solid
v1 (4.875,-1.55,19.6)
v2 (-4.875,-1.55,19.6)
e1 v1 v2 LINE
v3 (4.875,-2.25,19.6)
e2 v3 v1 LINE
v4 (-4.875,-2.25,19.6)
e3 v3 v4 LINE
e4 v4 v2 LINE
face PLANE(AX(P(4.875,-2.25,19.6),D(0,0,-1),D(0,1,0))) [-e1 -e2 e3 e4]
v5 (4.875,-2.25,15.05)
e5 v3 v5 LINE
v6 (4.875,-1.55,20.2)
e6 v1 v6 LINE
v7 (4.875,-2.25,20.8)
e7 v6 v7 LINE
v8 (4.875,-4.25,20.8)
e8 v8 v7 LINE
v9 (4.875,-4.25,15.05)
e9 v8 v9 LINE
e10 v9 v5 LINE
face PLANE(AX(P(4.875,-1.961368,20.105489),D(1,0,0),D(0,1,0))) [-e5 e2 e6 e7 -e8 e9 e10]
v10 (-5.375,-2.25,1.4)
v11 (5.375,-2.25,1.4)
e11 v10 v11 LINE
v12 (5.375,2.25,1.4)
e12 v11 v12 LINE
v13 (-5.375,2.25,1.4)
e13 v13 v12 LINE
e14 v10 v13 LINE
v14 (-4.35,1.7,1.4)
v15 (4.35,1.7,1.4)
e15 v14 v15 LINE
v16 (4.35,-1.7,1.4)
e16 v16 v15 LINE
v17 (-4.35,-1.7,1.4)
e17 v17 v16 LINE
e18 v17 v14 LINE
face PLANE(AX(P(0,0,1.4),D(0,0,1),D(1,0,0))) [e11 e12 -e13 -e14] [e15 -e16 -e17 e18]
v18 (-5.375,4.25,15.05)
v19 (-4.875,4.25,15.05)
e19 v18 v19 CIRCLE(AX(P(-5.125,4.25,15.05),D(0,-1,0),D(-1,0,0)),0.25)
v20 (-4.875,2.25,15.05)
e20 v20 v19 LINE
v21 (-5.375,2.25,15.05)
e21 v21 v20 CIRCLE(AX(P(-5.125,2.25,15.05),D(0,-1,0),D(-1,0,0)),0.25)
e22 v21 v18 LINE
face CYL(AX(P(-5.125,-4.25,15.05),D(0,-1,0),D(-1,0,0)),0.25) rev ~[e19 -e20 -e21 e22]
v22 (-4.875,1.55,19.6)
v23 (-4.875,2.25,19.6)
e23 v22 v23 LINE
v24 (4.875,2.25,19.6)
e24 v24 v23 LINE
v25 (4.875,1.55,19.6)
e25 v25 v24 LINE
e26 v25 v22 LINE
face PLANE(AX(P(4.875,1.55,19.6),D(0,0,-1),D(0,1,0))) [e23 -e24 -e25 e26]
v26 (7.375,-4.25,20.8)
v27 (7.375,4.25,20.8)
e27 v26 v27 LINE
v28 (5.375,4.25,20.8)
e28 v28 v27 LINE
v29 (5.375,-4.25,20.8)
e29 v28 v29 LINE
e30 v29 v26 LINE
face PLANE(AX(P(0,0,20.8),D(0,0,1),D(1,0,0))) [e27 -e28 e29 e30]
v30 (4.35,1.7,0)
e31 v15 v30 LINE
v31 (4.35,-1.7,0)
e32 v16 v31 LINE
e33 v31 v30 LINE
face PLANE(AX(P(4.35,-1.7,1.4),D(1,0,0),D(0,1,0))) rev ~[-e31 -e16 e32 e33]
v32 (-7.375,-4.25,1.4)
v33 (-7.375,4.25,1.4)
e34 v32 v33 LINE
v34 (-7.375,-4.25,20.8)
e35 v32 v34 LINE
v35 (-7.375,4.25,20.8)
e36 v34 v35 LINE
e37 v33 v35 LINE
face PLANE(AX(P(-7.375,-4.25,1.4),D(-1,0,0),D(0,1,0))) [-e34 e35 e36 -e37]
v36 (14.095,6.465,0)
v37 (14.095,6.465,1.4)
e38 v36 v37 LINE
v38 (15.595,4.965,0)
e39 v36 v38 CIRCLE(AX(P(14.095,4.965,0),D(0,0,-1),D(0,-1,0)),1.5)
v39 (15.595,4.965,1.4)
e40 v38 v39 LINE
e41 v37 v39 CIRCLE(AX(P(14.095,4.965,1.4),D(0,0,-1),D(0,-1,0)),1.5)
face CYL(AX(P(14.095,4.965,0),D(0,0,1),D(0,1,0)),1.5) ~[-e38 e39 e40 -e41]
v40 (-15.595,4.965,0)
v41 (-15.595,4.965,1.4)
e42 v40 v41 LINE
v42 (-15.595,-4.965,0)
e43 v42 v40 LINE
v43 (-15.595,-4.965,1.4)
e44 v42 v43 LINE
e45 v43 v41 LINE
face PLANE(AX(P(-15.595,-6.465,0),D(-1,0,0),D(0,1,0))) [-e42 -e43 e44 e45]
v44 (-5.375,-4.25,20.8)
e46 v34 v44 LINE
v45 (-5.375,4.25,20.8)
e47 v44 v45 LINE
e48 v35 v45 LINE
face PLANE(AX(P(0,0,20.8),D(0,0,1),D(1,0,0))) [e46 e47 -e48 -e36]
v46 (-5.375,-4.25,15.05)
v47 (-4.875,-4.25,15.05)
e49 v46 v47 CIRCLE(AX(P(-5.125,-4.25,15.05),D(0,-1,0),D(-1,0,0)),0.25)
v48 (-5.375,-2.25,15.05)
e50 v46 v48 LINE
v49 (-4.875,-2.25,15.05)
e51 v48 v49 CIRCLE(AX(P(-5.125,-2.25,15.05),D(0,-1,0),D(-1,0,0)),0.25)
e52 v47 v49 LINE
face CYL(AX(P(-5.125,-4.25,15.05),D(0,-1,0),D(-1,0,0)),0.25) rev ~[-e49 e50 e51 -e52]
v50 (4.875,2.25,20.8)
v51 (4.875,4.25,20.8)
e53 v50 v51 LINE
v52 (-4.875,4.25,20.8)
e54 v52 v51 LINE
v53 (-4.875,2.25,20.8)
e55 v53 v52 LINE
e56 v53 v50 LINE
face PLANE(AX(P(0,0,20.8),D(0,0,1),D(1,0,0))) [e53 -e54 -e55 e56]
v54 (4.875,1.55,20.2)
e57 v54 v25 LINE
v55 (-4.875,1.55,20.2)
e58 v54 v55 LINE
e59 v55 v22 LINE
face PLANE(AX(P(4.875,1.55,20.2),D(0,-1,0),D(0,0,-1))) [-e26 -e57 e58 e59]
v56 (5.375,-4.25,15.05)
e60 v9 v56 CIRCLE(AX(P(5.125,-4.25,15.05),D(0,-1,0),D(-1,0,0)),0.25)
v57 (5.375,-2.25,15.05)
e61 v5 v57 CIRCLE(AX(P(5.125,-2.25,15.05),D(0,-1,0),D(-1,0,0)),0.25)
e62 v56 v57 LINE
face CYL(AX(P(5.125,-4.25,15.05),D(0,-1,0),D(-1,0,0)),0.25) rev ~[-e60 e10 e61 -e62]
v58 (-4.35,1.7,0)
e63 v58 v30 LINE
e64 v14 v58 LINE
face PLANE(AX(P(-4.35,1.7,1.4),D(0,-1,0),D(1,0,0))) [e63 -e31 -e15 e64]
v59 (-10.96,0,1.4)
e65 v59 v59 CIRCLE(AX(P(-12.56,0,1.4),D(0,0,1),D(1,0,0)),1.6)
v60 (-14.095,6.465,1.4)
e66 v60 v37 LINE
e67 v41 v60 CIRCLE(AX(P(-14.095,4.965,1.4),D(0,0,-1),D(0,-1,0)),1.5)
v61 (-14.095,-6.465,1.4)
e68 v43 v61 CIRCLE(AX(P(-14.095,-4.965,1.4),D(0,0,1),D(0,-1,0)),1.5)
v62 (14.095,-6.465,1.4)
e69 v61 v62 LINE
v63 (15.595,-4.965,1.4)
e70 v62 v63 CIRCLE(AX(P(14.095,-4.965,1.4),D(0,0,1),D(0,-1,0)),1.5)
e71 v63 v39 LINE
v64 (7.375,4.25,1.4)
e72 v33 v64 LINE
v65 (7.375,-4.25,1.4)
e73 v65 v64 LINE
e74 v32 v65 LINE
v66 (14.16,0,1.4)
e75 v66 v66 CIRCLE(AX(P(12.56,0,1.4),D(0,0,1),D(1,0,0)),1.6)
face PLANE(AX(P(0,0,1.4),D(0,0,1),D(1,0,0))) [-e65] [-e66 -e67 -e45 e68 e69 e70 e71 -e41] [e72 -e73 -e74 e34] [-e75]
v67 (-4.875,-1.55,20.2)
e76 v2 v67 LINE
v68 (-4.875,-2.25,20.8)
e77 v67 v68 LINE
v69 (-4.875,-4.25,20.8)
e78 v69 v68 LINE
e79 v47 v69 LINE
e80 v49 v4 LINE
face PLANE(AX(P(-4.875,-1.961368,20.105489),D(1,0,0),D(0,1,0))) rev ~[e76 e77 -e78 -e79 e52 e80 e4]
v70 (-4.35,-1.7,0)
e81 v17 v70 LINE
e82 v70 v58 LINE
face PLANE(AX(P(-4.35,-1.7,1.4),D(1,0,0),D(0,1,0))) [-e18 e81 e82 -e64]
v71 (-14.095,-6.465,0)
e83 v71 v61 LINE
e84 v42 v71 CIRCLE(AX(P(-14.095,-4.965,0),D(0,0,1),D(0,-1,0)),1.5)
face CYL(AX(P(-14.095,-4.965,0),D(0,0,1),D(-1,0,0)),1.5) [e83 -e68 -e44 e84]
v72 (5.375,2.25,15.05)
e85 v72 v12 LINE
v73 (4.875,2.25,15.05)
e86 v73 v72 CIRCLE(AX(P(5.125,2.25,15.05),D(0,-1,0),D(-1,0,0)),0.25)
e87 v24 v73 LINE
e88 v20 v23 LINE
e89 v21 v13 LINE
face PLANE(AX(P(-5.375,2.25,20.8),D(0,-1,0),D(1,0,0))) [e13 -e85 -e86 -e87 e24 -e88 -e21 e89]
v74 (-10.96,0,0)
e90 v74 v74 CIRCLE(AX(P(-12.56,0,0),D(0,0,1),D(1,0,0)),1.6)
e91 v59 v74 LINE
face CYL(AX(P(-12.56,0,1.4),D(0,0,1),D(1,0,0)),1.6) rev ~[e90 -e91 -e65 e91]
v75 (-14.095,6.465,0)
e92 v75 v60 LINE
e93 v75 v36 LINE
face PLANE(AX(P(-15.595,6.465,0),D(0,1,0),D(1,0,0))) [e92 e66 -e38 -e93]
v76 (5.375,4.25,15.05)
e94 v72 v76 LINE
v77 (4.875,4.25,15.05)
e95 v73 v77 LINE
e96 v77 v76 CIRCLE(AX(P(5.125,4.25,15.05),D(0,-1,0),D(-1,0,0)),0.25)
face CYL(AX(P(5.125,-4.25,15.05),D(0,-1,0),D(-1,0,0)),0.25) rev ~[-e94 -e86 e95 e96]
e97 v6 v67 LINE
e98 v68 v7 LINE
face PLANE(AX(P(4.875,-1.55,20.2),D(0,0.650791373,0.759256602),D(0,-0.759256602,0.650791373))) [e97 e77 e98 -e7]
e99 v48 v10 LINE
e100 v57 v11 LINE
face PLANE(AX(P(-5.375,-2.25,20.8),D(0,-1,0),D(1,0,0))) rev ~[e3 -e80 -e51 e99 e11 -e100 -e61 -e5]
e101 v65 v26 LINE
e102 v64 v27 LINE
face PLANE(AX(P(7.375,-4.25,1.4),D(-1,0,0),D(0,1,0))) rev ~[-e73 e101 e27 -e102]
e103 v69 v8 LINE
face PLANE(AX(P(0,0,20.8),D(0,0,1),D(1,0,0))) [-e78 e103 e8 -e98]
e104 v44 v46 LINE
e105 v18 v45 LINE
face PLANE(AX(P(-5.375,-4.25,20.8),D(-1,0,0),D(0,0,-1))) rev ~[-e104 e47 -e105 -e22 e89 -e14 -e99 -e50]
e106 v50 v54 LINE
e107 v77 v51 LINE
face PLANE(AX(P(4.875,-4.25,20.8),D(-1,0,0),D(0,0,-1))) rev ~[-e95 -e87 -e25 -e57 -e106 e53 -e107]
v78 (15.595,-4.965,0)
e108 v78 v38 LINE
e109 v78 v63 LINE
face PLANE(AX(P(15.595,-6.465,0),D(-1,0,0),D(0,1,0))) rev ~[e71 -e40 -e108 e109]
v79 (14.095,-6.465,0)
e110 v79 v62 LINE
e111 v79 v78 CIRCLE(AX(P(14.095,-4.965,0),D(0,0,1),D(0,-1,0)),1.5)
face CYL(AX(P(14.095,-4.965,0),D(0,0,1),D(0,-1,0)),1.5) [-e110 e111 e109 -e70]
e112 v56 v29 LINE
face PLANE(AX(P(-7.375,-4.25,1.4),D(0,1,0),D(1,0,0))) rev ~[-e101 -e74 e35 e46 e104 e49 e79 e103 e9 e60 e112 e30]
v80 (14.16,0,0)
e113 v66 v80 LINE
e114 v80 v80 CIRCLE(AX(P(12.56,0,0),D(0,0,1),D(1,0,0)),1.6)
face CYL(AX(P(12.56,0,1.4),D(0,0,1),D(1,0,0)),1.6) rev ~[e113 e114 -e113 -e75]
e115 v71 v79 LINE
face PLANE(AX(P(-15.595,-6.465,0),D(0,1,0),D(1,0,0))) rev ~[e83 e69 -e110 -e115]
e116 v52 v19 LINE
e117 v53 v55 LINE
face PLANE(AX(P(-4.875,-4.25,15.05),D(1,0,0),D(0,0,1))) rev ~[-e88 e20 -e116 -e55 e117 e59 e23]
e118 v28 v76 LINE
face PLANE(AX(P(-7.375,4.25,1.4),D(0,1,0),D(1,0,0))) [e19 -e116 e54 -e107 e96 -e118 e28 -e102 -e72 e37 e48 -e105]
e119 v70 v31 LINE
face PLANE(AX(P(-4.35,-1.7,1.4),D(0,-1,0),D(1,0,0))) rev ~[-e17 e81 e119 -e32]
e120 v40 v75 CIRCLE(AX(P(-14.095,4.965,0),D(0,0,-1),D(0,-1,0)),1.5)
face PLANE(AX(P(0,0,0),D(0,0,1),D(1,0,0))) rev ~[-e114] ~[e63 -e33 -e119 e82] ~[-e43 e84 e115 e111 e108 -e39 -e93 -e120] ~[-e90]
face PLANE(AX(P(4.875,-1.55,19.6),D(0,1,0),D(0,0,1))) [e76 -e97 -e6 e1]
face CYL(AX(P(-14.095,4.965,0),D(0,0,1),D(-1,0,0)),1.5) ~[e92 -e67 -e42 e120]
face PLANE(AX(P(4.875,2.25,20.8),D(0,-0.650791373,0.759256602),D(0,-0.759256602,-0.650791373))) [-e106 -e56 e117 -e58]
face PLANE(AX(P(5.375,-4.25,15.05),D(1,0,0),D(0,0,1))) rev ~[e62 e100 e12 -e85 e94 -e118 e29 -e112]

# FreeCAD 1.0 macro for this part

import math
import FreeCAD as App
import Part
import Sketcher


def edges_at(feature, points):
    """Names of the edges that pass closest to the given points."""
    edges = feature.Shape.Edges
    near = lambda p: min(range(len(edges)), key=lambda i: edges[i].distToShape(Part.Vertex(*p))[0])
    return sorted({f"Edge{near(p) + 1}" for p in points})

doc = App.newDocument("Part")
body = doc.addObject("PartDesign::Body", "Body")

sketch1 = body.newObject("Sketcher::SketchObject", "Sketch")
sketch1.AttachmentSupport = (doc.getObject("XY_Plane"), [""])
sketch1.MapMode = "FlatFace"
sketch1.addGeometry(Part.LineSegment(App.Vector(-16, 6, 0), App.Vector(-16, -6, 0)), False)
sketch1.addGeometry(Part.LineSegment(App.Vector(-16, -6, 0), App.Vector(16, -6, 0)), False)
sketch1.addGeometry(Part.LineSegment(App.Vector(16, -6, 0), App.Vector(16, 6, 0)), False)
sketch1.addGeometry(Part.LineSegment(App.Vector(16, 6, 0), App.Vector(-16, 6, 0)), False)
sketch1.addConstraint(Sketcher.Constraint("Coincident", 0, 2, 1, 1))
sketch1.addConstraint(Sketcher.Constraint("Coincident", 1, 2, 2, 1))
sketch1.addConstraint(Sketcher.Constraint("Coincident", 2, 2, 3, 1))
sketch1.addConstraint(Sketcher.Constraint("Coincident", 3, 2, 0, 1))
sketch1.addConstraint(Sketcher.Constraint("Vertical", 0))
sketch1.addConstraint(Sketcher.Constraint("Horizontal", 1))
sketch1.addConstraint(Sketcher.Constraint("Vertical", 2))
sketch1.addConstraint(Sketcher.Constraint("Horizontal", 3))
sketch1.addConstraint(Sketcher.Constraint("Symmetric", 0, 2, 2, 2, -1, 1))
sketch1.addConstraint(Sketcher.Constraint("DistanceX", 1, 1, 1, 2, 31.19))
sketch1.addConstraint(Sketcher.Constraint("DistanceY", 0, 2, 0, 1, 12.93))
pad1 = body.newObject("PartDesign::Pad", "Pad")
pad1.Profile = sketch1
pad1.Length = 1.4

sketch2 = body.newObject("Sketcher::SketchObject", "Sketch001")
sketch2.AttachmentSupport = (doc.getObject("XY_Plane"), [""])
sketch2.MapMode = "FlatFace"
sketch2.AttachmentOffset = App.Placement(App.Vector(0, 0, 1.4), App.Rotation())
sketch2.addGeometry(Part.Circle(App.Vector(-12.6, 0, 0), App.Vector(0, 0, 1), 1.6), False)
sketch2.addGeometry(Part.Circle(App.Vector(12.6, 0, 0), App.Vector(0, 0, 1), 1.6), False)
sketch2.addConstraint(Sketcher.Constraint("Equal", 0, 1))
sketch2.addConstraint(Sketcher.Constraint("Symmetric", 0, 3, 1, 3, -1, 1))
sketch2.addConstraint(Sketcher.Constraint("PointOnObject", 0, 3, -1))
sketch2.addConstraint(Sketcher.Constraint("Diameter", 0, 3.2))
sketch2.addConstraint(Sketcher.Constraint("DistanceX", 0, 3, -1, 1, 12.56))
pocket1 = body.newObject("PartDesign::Pocket", "Pocket")
pocket1.Profile = sketch2
pocket1.Type = "ThroughAll"
doc.recompute()

fillet = body.newObject("PartDesign::Fillet", "Fillet")
fillet.Base = (pocket1, edges_at(pocket1, [
    (15.595, -6.465, 0.7),
    (15.595, 6.465, 0.7),
    (-15.595, -6.465, 0.7),
    (-15.595, 6.465, 0.7),
]))
fillet.Radius = 1.5

sketch3 = body.newObject("Sketcher::SketchObject", "Sketch002")
sketch3.AttachmentSupport = (doc.getObject("XY_Plane"), [""])
sketch3.MapMode = "FlatFace"
sketch3.AttachmentOffset = App.Placement(App.Vector(0, 0, 1.4), App.Rotation())
sketch3.addGeometry(Part.LineSegment(App.Vector(-4.3, 1.7, 0), App.Vector(-4.3, -1.7, 0)), False)
sketch3.addGeometry(Part.LineSegment(App.Vector(-4.3, -1.7, 0), App.Vector(4.3, -1.7, 0)), False)
sketch3.addGeometry(Part.LineSegment(App.Vector(4.3, -1.7, 0), App.Vector(4.3, 1.7, 0)), False)
sketch3.addGeometry(Part.LineSegment(App.Vector(4.3, 1.7, 0), App.Vector(-4.3, 1.7, 0)), False)
sketch3.addConstraint(Sketcher.Constraint("Coincident", 0, 2, 1, 1))
sketch3.addConstraint(Sketcher.Constraint("Coincident", 1, 2, 2, 1))
sketch3.addConstraint(Sketcher.Constraint("Coincident", 2, 2, 3, 1))
sketch3.addConstraint(Sketcher.Constraint("Coincident", 3, 2, 0, 1))
sketch3.addConstraint(Sketcher.Constraint("Vertical", 0))
sketch3.addConstraint(Sketcher.Constraint("Horizontal", 1))
sketch3.addConstraint(Sketcher.Constraint("Vertical", 2))
sketch3.addConstraint(Sketcher.Constraint("Horizontal", 3))
sketch3.addConstraint(Sketcher.Constraint("Symmetric", 0, 2, 2, 2, -1, 1))
sketch3.addConstraint(Sketcher.Constraint("DistanceX", 1, 1, 1, 2, 8.7))
sketch3.addConstraint(Sketcher.Constraint("DistanceY", 0, 2, 0, 1, 3.4))
pocket2 = body.newObject("PartDesign::Pocket", "Pocket001")
pocket2.Profile = sketch3
pocket2.Type = "ThroughAll"

sketch4 = body.newObject("Sketcher::SketchObject", "Sketch003")
sketch4.AttachmentSupport = (doc.getObject("XY_Plane"), [""])
sketch4.MapMode = "FlatFace"
sketch4.AttachmentOffset = App.Placement(App.Vector(0, 0, 1.4), App.Rotation())
sketch4.addGeometry(Part.LineSegment(App.Vector(-7, 4, 0), App.Vector(-7, -4, 0)), False)
sketch4.addGeometry(Part.LineSegment(App.Vector(-7, -4, 0), App.Vector(7, -4, 0)), False)
sketch4.addGeometry(Part.LineSegment(App.Vector(7, -4, 0), App.Vector(7, 4, 0)), False)
sketch4.addGeometry(Part.LineSegment(App.Vector(7, 4, 0), App.Vector(-7, 4, 0)), False)
sketch4.addConstraint(Sketcher.Constraint("Coincident", 0, 2, 1, 1))
sketch4.addConstraint(Sketcher.Constraint("Coincident", 1, 2, 2, 1))
sketch4.addConstraint(Sketcher.Constraint("Coincident", 2, 2, 3, 1))
sketch4.addConstraint(Sketcher.Constraint("Coincident", 3, 2, 0, 1))
sketch4.addConstraint(Sketcher.Constraint("Vertical", 0))
sketch4.addConstraint(Sketcher.Constraint("Horizontal", 1))
sketch4.addConstraint(Sketcher.Constraint("Vertical", 2))
sketch4.addConstraint(Sketcher.Constraint("Horizontal", 3))
sketch4.addConstraint(Sketcher.Constraint("Symmetric", 0, 2, 2, 2, -1, 1))
sketch4.addConstraint(Sketcher.Constraint("DistanceY", 0, 2, 0, 1, 8.5))
sketch4.addConstraint(Sketcher.Constraint("DistanceX", 1, 1, 1, 2, 14.75))
pad2 = body.newObject("PartDesign::Pad", "Pad001")
pad2.Profile = sketch4
pad2.Length = 19.4

sketch5 = body.newObject("Sketcher::SketchObject", "Sketch004")
sketch5.AttachmentSupport = (doc.getObject("XY_Plane"), [""])
sketch5.MapMode = "FlatFace"
sketch5.AttachmentOffset = App.Placement(App.Vector(0, 0, 20.8), App.Rotation())
sketch5.addGeometry(Part.LineSegment(App.Vector(-5.4, 2.2, 0), App.Vector(-5.4, -2.2, 0)), False)
sketch5.addGeometry(Part.LineSegment(App.Vector(-5.4, -2.2, 0), App.Vector(5.4, -2.2, 0)), False)
sketch5.addGeometry(Part.LineSegment(App.Vector(5.4, -2.2, 0), App.Vector(5.4, 2.2, 0)), False)
sketch5.addGeometry(Part.LineSegment(App.Vector(5.4, 2.2, 0), App.Vector(-5.4, 2.2, 0)), False)
sketch5.addConstraint(Sketcher.Constraint("Coincident", 0, 2, 1, 1))
sketch5.addConstraint(Sketcher.Constraint("Coincident", 1, 2, 2, 1))
sketch5.addConstraint(Sketcher.Constraint("Coincident", 2, 2, 3, 1))
sketch5.addConstraint(Sketcher.Constraint("Coincident", 3, 2, 0, 1))
sketch5.addConstraint(Sketcher.Constraint("Vertical", 0))
sketch5.addConstraint(Sketcher.Constraint("Horizontal", 1))
sketch5.addConstraint(Sketcher.Constraint("Vertical", 2))
sketch5.addConstraint(Sketcher.Constraint("Horizontal", 3))
sketch5.addConstraint(Sketcher.Constraint("Symmetric", 0, 2, 2, 2, -1, 1))
sketch5.addConstraint(Sketcher.Constraint("DistanceY", 0, 2, 0, 1, 4.5))
sketch5.addConstraint(Sketcher.Constraint("DistanceX", 1, 1, 1, 2, 10.75))
pocket3 = body.newObject("PartDesign::Pocket", "Pocket002")
pocket3.Profile = sketch5
pocket3.Length = 19.4

sketch6 = body.newObject("Sketcher::SketchObject", "Sketch005")
sketch6.AttachmentSupport = (doc.getObject("XZ_Plane"), [""])
sketch6.MapMode = "FlatFace"
sketch6.AttachmentOffset = App.Placement(App.Vector(0, 0, 4.25), App.Rotation())
sketch6.addGeometry(Part.LineSegment(App.Vector(-4.88, 20.8, 0), App.Vector(-5.38, 20.8, 0)), False)
sketch6.addGeometry(Part.LineSegment(App.Vector(-5.38, 20.8, 0), App.Vector(-5.38, 15.05, 0)), False)
sketch6.addGeometry(Part.ArcOfCircle(Part.Circle(App.Vector(-5.12, 15.05, 0), App.Vector(0, 0, 1), 0.25), math.radians(180), math.radians(360)), False)
sketch6.addGeometry(Part.LineSegment(App.Vector(-4.88, 15.05, 0), App.Vector(-4.88, 20.8, 0)), False)
sketch6.addGeometry(Part.LineSegment(App.Vector(5.38, 15.05, 0), App.Vector(5.38, 20.8, 0)), False)
sketch6.addGeometry(Part.LineSegment(App.Vector(5.38, 20.8, 0), App.Vector(4.88, 20.8, 0)), False)
sketch6.addGeometry(Part.LineSegment(App.Vector(4.88, 20.8, 0), App.Vector(4.88, 15.05, 0)), False)
sketch6.addGeometry(Part.ArcOfCircle(Part.Circle(App.Vector(5.12, 15.05, 0), App.Vector(0, 0, 1), 0.25), math.radians(180), math.radians(360)), False)
sketch6.addConstraint(Sketcher.Constraint("Coincident", 0, 2, 1, 1))
sketch6.addConstraint(Sketcher.Constraint("Tangent", 1, 2, 2, 1))
sketch6.addConstraint(Sketcher.Constraint("Tangent", 2, 2, 3, 1))
sketch6.addConstraint(Sketcher.Constraint("Coincident", 3, 2, 0, 1))
sketch6.addConstraint(Sketcher.Constraint("Coincident", 4, 2, 5, 1))
sketch6.addConstraint(Sketcher.Constraint("Coincident", 5, 2, 6, 1))
sketch6.addConstraint(Sketcher.Constraint("Tangent", 6, 2, 7, 1))
sketch6.addConstraint(Sketcher.Constraint("Tangent", 7, 2, 4, 1))
sketch6.addConstraint(Sketcher.Constraint("Horizontal", 0))
sketch6.addConstraint(Sketcher.Constraint("Vertical", 1))
sketch6.addConstraint(Sketcher.Constraint("Vertical", 3))
sketch6.addConstraint(Sketcher.Constraint("Vertical", 4))
sketch6.addConstraint(Sketcher.Constraint("Horizontal", 5))
sketch6.addConstraint(Sketcher.Constraint("Vertical", 6))
sketch6.addConstraint(Sketcher.Constraint("Equal", 2, 7))
sketch6.addConstraint(Sketcher.Constraint("Symmetric", 2, 3, 7, 3, -2))
sketch6.addConstraint(Sketcher.Constraint("Horizontal", 3, 2, 4, 2))
sketch6.addConstraint(Sketcher.Constraint("Radius", 2, 0.25))
sketch6.addConstraint(Sketcher.Constraint("DistanceX", 2, 2, 7, 3, 10.0))
sketch6.addConstraint(Sketcher.Constraint("DistanceY", 1, 2, 1, 1, 5.75))
sketch6.addConstraint(Sketcher.Constraint("DistanceY", -1, 1, 0, 2, 20.8))
pocket4 = body.newObject("PartDesign::Pocket", "Pocket003")
pocket4.Profile = sketch6
pocket4.Type = "ThroughAll"

sketch7 = body.newObject("Sketcher::SketchObject", "Sketch006")
sketch7.AttachmentSupport = (doc.getObject("YZ_Plane"), [""])
sketch7.MapMode = "FlatFace"
sketch7.AttachmentOffset = App.Placement(App.Vector(0, 0, 4.875), App.Rotation())
sketch7.addGeometry(Part.LineSegment(App.Vector(-1.6, 20.2, 0), App.Vector(-2.2, 20.8, 0)), False)
sketch7.addGeometry(Part.LineSegment(App.Vector(-2.2, 20.8, 0), App.Vector(-2.2, 19.6, 0)), False)
sketch7.addGeometry(Part.LineSegment(App.Vector(-2.2, 19.6, 0), App.Vector(-1.6, 19.6, 0)), False)
sketch7.addGeometry(Part.LineSegment(App.Vector(-1.6, 19.6, 0), App.Vector(-1.6, 20.2, 0)), False)
sketch7.addGeometry(Part.LineSegment(App.Vector(2.2, 19.6, 0), App.Vector(2.2, 20.8, 0)), False)
sketch7.addGeometry(Part.LineSegment(App.Vector(2.2, 20.8, 0), App.Vector(1.6, 20.2, 0)), False)
sketch7.addGeometry(Part.LineSegment(App.Vector(1.6, 20.2, 0), App.Vector(1.6, 19.6, 0)), False)
sketch7.addGeometry(Part.LineSegment(App.Vector(1.6, 19.6, 0), App.Vector(2.2, 19.6, 0)), False)
sketch7.addConstraint(Sketcher.Constraint("Coincident", 0, 2, 1, 1))
sketch7.addConstraint(Sketcher.Constraint("Coincident", 1, 2, 2, 1))
sketch7.addConstraint(Sketcher.Constraint("Coincident", 2, 2, 3, 1))
sketch7.addConstraint(Sketcher.Constraint("Coincident", 3, 2, 0, 1))
sketch7.addConstraint(Sketcher.Constraint("Coincident", 4, 2, 5, 1))
sketch7.addConstraint(Sketcher.Constraint("Coincident", 5, 2, 6, 1))
sketch7.addConstraint(Sketcher.Constraint("Coincident", 6, 2, 7, 1))
sketch7.addConstraint(Sketcher.Constraint("Coincident", 7, 2, 4, 1))
sketch7.addConstraint(Sketcher.Constraint("Vertical", 1))
sketch7.addConstraint(Sketcher.Constraint("Horizontal", 2))
sketch7.addConstraint(Sketcher.Constraint("Vertical", 3))
sketch7.addConstraint(Sketcher.Constraint("Vertical", 4))
sketch7.addConstraint(Sketcher.Constraint("Vertical", 6))
sketch7.addConstraint(Sketcher.Constraint("Horizontal", 7))
sketch7.addConstraint(Sketcher.Constraint("Symmetric", 0, 2, 4, 2, -2))
sketch7.addConstraint(Sketcher.Constraint("Symmetric", 3, 2, 5, 2, -2))
sketch7.addConstraint(Sketcher.Constraint("Horizontal", 2, 2, 6, 2))
sketch7.addConstraint(Sketcher.Constraint("DistanceX", 2, 1, 2, 2, 0.7))
sketch7.addConstraint(Sketcher.Constraint("DistanceY", 1, 2, 1, 1, 1.2))
sketch7.addConstraint(Sketcher.Constraint("DistanceY", 3, 1, 3, 2, 0.6))
sketch7.addConstraint(Sketcher.Constraint("DistanceY", -1, 1, 0, 2, 20.8))
sketch7.addConstraint(Sketcher.Constraint("DistanceX", 3, 2, 4, 2, 3.8))
pad3 = body.newObject("PartDesign::Pad", "Pad002")
pad3.Profile = sketch7
pad3.Length = 9.75
pad3.Reversed = True

doc.recompute()
